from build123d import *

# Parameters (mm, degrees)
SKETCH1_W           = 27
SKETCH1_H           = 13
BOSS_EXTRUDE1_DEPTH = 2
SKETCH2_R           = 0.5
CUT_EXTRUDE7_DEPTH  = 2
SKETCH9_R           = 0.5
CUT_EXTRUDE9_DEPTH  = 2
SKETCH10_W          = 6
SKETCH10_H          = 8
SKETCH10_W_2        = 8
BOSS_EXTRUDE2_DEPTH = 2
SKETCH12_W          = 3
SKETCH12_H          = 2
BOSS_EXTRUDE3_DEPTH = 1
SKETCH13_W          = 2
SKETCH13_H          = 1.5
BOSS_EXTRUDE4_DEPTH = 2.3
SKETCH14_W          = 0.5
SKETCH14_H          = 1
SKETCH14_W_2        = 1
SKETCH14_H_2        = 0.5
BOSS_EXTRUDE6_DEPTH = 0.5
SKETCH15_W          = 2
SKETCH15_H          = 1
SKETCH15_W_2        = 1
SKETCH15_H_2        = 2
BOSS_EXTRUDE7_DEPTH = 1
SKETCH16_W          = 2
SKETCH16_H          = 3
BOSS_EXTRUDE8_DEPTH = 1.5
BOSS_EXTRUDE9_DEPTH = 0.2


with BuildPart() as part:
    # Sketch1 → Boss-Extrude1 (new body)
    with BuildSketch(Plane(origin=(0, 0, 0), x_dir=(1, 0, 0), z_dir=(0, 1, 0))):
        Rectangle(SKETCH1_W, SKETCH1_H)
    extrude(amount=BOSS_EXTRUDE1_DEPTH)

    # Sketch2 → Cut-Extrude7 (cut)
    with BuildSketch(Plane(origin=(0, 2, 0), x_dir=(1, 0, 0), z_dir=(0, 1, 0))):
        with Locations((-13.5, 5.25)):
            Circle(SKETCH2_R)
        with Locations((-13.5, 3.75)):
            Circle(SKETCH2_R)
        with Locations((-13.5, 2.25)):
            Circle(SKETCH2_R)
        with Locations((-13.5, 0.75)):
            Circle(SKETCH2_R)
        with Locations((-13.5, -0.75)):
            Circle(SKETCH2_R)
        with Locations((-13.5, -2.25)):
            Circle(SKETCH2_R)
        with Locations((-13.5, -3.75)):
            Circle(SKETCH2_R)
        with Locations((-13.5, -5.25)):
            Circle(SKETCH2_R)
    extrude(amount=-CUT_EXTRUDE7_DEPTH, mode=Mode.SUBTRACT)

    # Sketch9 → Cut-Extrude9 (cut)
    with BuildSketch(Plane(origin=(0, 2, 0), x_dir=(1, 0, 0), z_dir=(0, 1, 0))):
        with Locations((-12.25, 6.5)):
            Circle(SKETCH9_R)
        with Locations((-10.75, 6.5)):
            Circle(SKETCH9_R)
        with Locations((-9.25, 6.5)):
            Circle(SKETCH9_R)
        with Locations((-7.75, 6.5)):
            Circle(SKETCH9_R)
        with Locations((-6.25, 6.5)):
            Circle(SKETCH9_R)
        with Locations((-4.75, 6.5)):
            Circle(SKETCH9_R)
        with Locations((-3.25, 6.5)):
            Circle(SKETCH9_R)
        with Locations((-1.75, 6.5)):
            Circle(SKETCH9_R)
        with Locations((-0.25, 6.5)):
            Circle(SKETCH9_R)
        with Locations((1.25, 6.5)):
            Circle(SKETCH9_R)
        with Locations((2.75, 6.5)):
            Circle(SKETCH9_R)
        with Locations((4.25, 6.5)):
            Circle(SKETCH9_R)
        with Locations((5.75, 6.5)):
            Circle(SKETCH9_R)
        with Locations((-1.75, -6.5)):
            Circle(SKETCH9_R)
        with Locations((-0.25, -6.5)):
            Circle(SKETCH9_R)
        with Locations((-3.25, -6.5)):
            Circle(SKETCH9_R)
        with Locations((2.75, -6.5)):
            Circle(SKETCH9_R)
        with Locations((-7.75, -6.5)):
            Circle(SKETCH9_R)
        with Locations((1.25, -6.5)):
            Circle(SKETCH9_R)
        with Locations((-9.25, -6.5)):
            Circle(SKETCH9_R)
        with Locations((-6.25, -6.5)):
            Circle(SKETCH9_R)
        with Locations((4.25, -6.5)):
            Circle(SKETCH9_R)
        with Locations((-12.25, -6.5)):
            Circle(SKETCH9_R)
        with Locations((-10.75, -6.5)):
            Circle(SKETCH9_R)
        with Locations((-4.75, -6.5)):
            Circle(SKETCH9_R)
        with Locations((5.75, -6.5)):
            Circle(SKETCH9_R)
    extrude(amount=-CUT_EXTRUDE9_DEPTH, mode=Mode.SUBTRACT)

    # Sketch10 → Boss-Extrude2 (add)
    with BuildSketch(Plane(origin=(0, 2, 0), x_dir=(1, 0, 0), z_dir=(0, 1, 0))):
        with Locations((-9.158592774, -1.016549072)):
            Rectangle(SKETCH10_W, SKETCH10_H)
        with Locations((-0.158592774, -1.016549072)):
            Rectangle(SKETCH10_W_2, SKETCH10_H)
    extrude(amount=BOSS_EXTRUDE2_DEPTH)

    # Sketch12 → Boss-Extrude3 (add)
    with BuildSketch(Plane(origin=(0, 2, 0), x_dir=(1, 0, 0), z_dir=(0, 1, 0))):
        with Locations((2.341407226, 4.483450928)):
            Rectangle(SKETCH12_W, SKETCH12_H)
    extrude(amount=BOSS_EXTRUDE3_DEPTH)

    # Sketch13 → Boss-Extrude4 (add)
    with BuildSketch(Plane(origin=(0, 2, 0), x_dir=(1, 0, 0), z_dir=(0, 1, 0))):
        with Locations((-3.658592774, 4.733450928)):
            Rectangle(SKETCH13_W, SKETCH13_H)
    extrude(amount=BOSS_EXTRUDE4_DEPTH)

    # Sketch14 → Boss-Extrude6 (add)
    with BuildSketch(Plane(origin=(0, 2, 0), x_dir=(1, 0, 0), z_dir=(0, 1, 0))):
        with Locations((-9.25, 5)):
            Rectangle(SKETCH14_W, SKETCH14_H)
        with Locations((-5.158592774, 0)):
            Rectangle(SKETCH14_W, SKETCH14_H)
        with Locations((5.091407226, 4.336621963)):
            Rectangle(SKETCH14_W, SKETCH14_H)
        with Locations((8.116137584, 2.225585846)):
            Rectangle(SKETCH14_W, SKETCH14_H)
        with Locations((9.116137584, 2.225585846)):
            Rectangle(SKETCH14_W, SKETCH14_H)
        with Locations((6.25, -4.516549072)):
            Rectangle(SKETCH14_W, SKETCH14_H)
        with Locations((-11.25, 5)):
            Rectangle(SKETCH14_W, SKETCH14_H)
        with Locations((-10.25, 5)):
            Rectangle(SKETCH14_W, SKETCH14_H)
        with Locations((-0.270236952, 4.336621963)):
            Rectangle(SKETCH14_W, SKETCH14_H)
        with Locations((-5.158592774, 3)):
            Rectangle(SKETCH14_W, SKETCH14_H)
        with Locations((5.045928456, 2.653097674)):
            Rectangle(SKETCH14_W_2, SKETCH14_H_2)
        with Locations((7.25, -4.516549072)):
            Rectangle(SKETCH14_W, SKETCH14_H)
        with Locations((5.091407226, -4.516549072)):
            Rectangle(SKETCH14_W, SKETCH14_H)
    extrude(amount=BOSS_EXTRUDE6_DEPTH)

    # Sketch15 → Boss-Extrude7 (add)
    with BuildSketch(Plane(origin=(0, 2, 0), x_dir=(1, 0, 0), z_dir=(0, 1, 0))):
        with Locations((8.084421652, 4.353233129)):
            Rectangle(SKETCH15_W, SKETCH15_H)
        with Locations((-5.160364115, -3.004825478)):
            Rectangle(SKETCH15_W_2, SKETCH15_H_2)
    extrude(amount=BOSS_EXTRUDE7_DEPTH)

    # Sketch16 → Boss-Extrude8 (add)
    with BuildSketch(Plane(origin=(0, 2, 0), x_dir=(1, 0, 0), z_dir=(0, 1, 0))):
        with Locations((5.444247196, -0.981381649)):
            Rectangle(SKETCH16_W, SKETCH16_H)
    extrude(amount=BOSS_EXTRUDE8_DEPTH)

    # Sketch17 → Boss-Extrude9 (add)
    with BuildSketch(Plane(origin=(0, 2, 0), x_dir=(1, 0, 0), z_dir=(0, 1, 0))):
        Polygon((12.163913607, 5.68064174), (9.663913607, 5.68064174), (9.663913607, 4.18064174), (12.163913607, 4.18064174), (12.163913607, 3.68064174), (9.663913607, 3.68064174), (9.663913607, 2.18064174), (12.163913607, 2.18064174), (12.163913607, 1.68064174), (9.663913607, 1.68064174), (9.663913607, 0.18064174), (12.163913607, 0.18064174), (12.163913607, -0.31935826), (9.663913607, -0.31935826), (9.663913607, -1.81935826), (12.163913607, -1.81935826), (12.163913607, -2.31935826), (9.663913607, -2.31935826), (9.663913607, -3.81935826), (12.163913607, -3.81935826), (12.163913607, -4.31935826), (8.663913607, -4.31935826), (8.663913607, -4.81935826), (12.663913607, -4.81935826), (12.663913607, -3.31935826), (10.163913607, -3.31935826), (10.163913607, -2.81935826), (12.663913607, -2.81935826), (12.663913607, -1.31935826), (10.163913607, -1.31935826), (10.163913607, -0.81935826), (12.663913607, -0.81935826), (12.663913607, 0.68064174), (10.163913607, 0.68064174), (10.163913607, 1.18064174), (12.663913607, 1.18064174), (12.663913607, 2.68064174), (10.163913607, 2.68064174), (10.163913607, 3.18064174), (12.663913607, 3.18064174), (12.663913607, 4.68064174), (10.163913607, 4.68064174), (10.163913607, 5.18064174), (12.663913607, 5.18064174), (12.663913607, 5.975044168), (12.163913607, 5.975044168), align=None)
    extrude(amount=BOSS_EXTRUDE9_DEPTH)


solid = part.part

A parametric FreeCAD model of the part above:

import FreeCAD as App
import Part
import Sketcher

V = App.Vector


def add_polygon(sketch, points):
    """Adds a closed chain of lines whose ends are joined by coincident constraints."""
    first, n = sketch.GeometryCount, len(points)
    for a, b in zip(points, points[1:] + points[:1]):
        sketch.addGeometry(Part.LineSegment(App.Vector(*a, 0), App.Vector(*b, 0)), False)
    for i in range(n):
        sketch.addConstraint(Sketcher.Constraint("Coincident", first + i, 2, first + (i + 1) % n, 1))

doc = App.newDocument("Part")
body = doc.addObject("PartDesign::Body", "Body")

# Sketch on XZ plane
sketch1 = body.newObject("Sketcher::SketchObject", "Sketch")
sketch1.AttachmentSupport = (doc.getObject("XZ_Plane"), [""])
sketch1.MapMode = "FlatFace"
add_polygon(sketch1, [(-14, -6), (-14, 6), (14, 6), (14, -6)])  # lines 0-3
sketch1.addConstraint([
    Sketcher.Constraint("Vertical", 0),
    Sketcher.Constraint("Horizontal", 1),
    Sketcher.Constraint("Vertical", 2),
    Sketcher.Constraint("Horizontal", 3),
    Sketcher.Constraint("Symmetric", 0, 2, 2, 2, -1, 1),
    Sketcher.Constraint("DistanceX", 1, 1, 1, 2, 27.0),
    Sketcher.Constraint("DistanceY", 0, 1, 0, 2, 13.0),
])
pad1 = body.newObject("PartDesign::Pad", "Pad")
pad1.Profile = sketch1
pad1.Length = 2
pad1.Reversed = True

# Sketch on XZ plane
sketch2 = body.newObject("Sketcher::SketchObject", "Sketch001")
sketch2.AttachmentSupport = (doc.getObject("XZ_Plane"), [""])
sketch2.MapMode = "FlatFace"
sketch2.AttachmentOffset = App.Placement(V(0, 0, -2), App.Rotation())
sketch2.addGeometry([
    Part.Circle(V(-13.5, -5.2, 0), V(0, 0, 1), 0.5),  # 0
    Part.Circle(V(-13.5, -3.8, 0), V(0, 0, 1), 0.5),  # 1
    Part.Circle(V(-13.5, -2.2, 0), V(0, 0, 1), 0.5),  # 2
    Part.Circle(V(-13.5, -0.8, 0), V(0, 0, 1), 0.5),  # 3
    Part.Circle(V(-13.5, 0.8, 0), V(0, 0, 1), 0.5),  # 4
    Part.Circle(V(-13.5, 2.2, 0), V(0, 0, 1), 0.5),  # 5
    Part.Circle(V(-13.5, 3.8, 0), V(0, 0, 1), 0.5),  # 6
    Part.Circle(V(-13.5, 5.2, 0), V(0, 0, 1), 0.5),  # 7
], False)
sketch2.addConstraint([
    Sketcher.Constraint("Equal", 0, 1),
    Sketcher.Constraint("Equal", 1, 2),
    Sketcher.Constraint("Equal", 2, 3),
    Sketcher.Constraint("Equal", 3, 4),
    Sketcher.Constraint("Equal", 4, 5),
    Sketcher.Constraint("Equal", 5, 6),
    Sketcher.Constraint("Equal", 6, 7),
    Sketcher.Constraint("Symmetric", 3, 3, 4, 3, -1),
    Sketcher.Constraint("Symmetric", 2, 3, 5, 3, -1),
    Sketcher.Constraint("Symmetric", 1, 3, 6, 3, -1),
    Sketcher.Constraint("Symmetric", 0, 3, 7, 3, -1),
    Sketcher.Constraint("Vertical", 0, 3, 1, 3),
    Sketcher.Constraint("Vertical", 1, 3, 2, 3),
    Sketcher.Constraint("Vertical", 2, 3, 3, 3),
    Sketcher.Constraint("Diameter", 0, 1.0),
    Sketcher.Constraint("DistanceY", 0, 3, 2, 3, 3.0),
    Sketcher.Constraint("DistanceY", 1, 3, 3, 3, 3.0),
    Sketcher.Constraint("DistanceY", 2, 3, 4, 3, 3.0),
    Sketcher.Constraint("DistanceX", 0, 3, -1, 1, 13.5),
    Sketcher.Constraint("DistanceY", 0, 3, 1, 3, 1.5),
])
pocket1 = body.newObject("PartDesign::Pocket", "Pocket")
pocket1.Profile = sketch2
pocket1.Length = 2
pocket1.Reversed = True

# Sketch on XZ plane
sketch3 = body.newObject("Sketcher::SketchObject", "Sketch002")
sketch3.AttachmentSupport = (doc.getObject("XZ_Plane"), [""])
sketch3.MapMode = "FlatFace"
sketch3.AttachmentOffset = App.Placement(V(0, 0, -2), App.Rotation())
sketch3.addGeometry([
    Part.Circle(V(-12.2, -6.5, 0), V(0, 0, 1), 0.5),  # 0
    Part.Circle(V(-10.8, -6.5, 0), V(0, 0, 1), 0.5),  # 1
    Part.Circle(V(-9.2, -6.5, 0), V(0, 0, 1), 0.5),  # 2
    Part.Circle(V(-7.8, -6.5, 0), V(0, 0, 1), 0.5),  # 3
    Part.Circle(V(-6.2, -6.5, 0), V(0, 0, 1), 0.5),  # 4
    Part.Circle(V(-4.8, -6.5, 0), V(0, 0, 1), 0.5),  # 5
    Part.Circle(V(-3.2, -6.5, 0), V(0, 0, 1), 0.5),  # 6
    Part.Circle(V(-1.8, -6.5, 0), V(0, 0, 1), 0.5),  # 7
    Part.Circle(V(-0.2, -6.5, 0), V(0, 0, 1), 0.5),  # 8
    Part.Circle(V(1.2, -6.5, 0), V(0, 0, 1), 0.5),  # 9
    Part.Circle(V(2.8, -6.5, 0), V(0, 0, 1), 0.5),  # 10
    Part.Circle(V(4.2, -6.5, 0), V(0, 0, 1), 0.5),  # 11
    Part.Circle(V(5.8, -6.5, 0), V(0, 0, 1), 0.5),  # 12
    Part.Circle(V(-1.8, 6.5, 0), V(0, 0, 1), 0.5),  # 13
    Part.Circle(V(-0.2, 6.5, 0), V(0, 0, 1), 0.5),  # 14
    Part.Circle(V(-3.2, 6.5, 0), V(0, 0, 1), 0.5),  # 15
    Part.Circle(V(2.8, 6.5, 0), V(0, 0, 1), 0.5),  # 16
    Part.Circle(V(-7.8, 6.5, 0), V(0, 0, 1), 0.5),  # 17
    Part.Circle(V(1.2, 6.5, 0), V(0, 0, 1), 0.5),  # 18
    Part.Circle(V(-9.2, 6.5, 0), V(0, 0, 1), 0.5),  # 19
    Part.Circle(V(-6.2, 6.5, 0), V(0, 0, 1), 0.5),  # 20
    Part.Circle(V(4.2, 6.5, 0), V(0, 0, 1), 0.5),  # 21
    Part.Circle(V(-12.2, 6.5, 0), V(0, 0, 1), 0.5),  # 22
    Part.Circle(V(-10.8, 6.5, 0), V(0, 0, 1), 0.5),  # 23
    Part.Circle(V(-4.8, 6.5, 0), V(0, 0, 1), 0.5),  # 24
    Part.Circle(V(5.8, 6.5, 0), V(0, 0, 1), 0.5),  # 25
], False)
sketch3.addConstraint([
    Sketcher.Constraint("Equal", 0, 1),
    Sketcher.Constraint("Equal", 1, 2),
    Sketcher.Constraint("Equal", 2, 3),
    Sketcher.Constraint("Equal", 3, 4),
    Sketcher.Constraint("Equal", 4, 5),
    Sketcher.Constraint("Equal", 5, 6),
    Sketcher.Constraint("Equal", 6, 7),
    Sketcher.Constraint("Equal", 7, 8),
    Sketcher.Constraint("Equal", 8, 9),
    Sketcher.Constraint("Equal", 9, 10),
    Sketcher.Constraint("Equal", 10, 11),
    Sketcher.Constraint("Equal", 11, 12),
    Sketcher.Constraint("Equal", 12, 13),
    Sketcher.Constraint("Equal", 13, 14),
    Sketcher.Constraint("Equal", 14, 15),
    Sketcher.Constraint("Equal", 15, 16),
    Sketcher.Constraint("Equal", 16, 17),
    Sketcher.Constraint("Equal", 17, 18),
    Sketcher.Constraint("Equal", 18, 19),
    Sketcher.Constraint("Equal", 19, 20),
    Sketcher.Constraint("Equal", 20, 21),
    Sketcher.Constraint("Equal", 21, 22),
    Sketcher.Constraint("Equal", 22, 23),
    Sketcher.Constraint("Equal", 23, 24),
    Sketcher.Constraint("Equal", 24, 25),
    Sketcher.Constraint("Symmetric", 7, 3, 13, 3, -1),
    Sketcher.Constraint("Symmetric", 8, 3, 14, 3, -1),
    Sketcher.Constraint("Symmetric", 6, 3, 15, 3, -1),
    Sketcher.Constraint("Symmetric", 10, 3, 16, 3, -1),
    Sketcher.Constraint("Symmetric", 3, 3, 17, 3, -1),
    Sketcher.Constraint("Symmetric", 9, 3, 18, 3, -1),
    Sketcher.Constraint("Symmetric", 2, 3, 19, 3, -1),
    Sketcher.Constraint("Symmetric", 4, 3, 20, 3, -1),
    Sketcher.Constraint("Symmetric", 11, 3, 21, 3, -1),
    Sketcher.Constraint("Symmetric", 0, 3, 22, 3, -1),
    Sketcher.Constraint("Symmetric", 1, 3, 23, 3, -1),
    Sketcher.Constraint("Symmetric", 5, 3, 24, 3, -1),
    Sketcher.Constraint("Symmetric", 12, 3, 25, 3, -1),
    Sketcher.Constraint("Horizontal", 0, 3, 1, 3),
    Sketcher.Constraint("Horizontal", 1, 3, 2, 3),
    Sketcher.Constraint("Horizontal", 2, 3, 3, 3),
    Sketcher.Constraint("Horizontal", 3, 3, 4, 3),
    Sketcher.Constraint("Horizontal", 4, 3, 5, 3),
    Sketcher.Constraint("Horizontal", 5, 3, 6, 3),
    Sketcher.Constraint("Horizontal", 6, 3, 7, 3),
    Sketcher.Constraint("Horizontal", 7, 3, 8, 3),
    Sketcher.Constraint("Horizontal", 8, 3, 9, 3),
    Sketcher.Constraint("Horizontal", 9, 3, 10, 3),
    Sketcher.Constraint("Horizontal", 10, 3, 11, 3),
    Sketcher.Constraint("Horizontal", 11, 3, 12, 3),
    Sketcher.Constraint("Diameter", 0, 1.0),
    Sketcher.Constraint("DistanceX", 0, 3, 2, 3, 3.0),
    Sketcher.Constraint("DistanceX", 1, 3, 3, 3, 3.0),
    Sketcher.Constraint("DistanceX", 2, 3, 4, 3, 3.0),
    Sketcher.Constraint("DistanceX", 3, 3, 5, 3, 3.0),
    Sketcher.Constraint("DistanceX", 4, 3, 6, 3, 3.0),
    Sketcher.Constraint("DistanceX", 5, 3, 7, 3, 3.0),
    Sketcher.Constraint("DistanceX", 6, 3, 8, 3, 3.0),
    Sketcher.Constraint("DistanceX", 7, 3, 9, 3, 3.0),
    Sketcher.Constraint("DistanceX", 8, 3, 10, 3, 3.0),
    Sketcher.Constraint("DistanceX", 9, 3, 11, 3, 3.0),
    Sketcher.Constraint("DistanceX", 10, 3, 12, 3, 3.0),
    Sketcher.Constraint("DistanceY", 7, 3, 13, 3, 13.0),
    Sketcher.Constraint("DistanceX", 0, 3, 1, 3, 1.5),
    Sketcher.Constraint("DistanceX", 0, 3, -1, 1, 12.25),
])
pocket2 = body.newObject("PartDesign::Pocket", "Pocket001")
pocket2.Profile = sketch3
pocket2.Length = 2
pocket2.Reversed = True

# Sketch on XZ plane
sketch4 = body.newObject("Sketcher::SketchObject", "Sketch003")
sketch4.AttachmentSupport = (doc.getObject("XZ_Plane"), [""])
sketch4.MapMode = "FlatFace"
sketch4.AttachmentOffset = App.Placement(V(0, 0, -2), App.Rotation())
add_polygon(sketch4, [(-12, -3), (-12, 5), (-6, 5), (-6, -3)])  # lines 0-3
add_polygon(sketch4, [(-4, -3), (-4, 5), (4, 5), (4, -3)])  # lines 4-7
sketch4.addConstraint([
    Sketcher.Constraint("Vertical", 0),
    Sketcher.Constraint("Horizontal", 1),
    Sketcher.Constraint("Vertical", 2),
    Sketcher.Constraint("Horizontal", 3),
    Sketcher.Constraint("Vertical", 4),
    Sketcher.Constraint("Horizontal", 5),
    Sketcher.Constraint("Vertical", 6),
    Sketcher.Constraint("Horizontal", 7),
    Sketcher.Constraint("Horizontal", 1, 2, 4, 2),
    Sketcher.Constraint("Horizontal", 3, 2, 6, 2),
    Sketcher.Constraint("Equal", 7, 0),
    Sketcher.Constraint("DistanceX", 1, 1, 1, 2, 6.0),
    Sketcher.Constraint("DistanceX", 5, 1, 5, 2, 8.0),
    Sketcher.Constraint("DistanceX", 1, 2, 4, 2, 2.0),
    Sketcher.Constraint("DistanceY", -1, 1, 0, 2, 5.016549),
    Sketcher.Constraint("DistanceX", 0, 2, -1, 1, 12.158593),
])
pad2 = body.newObject("PartDesign::Pad", "Pad001")
pad2.Profile = sketch4
pad2.Length = 2
pad2.Reversed = True

# Sketch on XZ plane
sketch5 = body.newObject("Sketcher::SketchObject", "Sketch004")
sketch5.AttachmentSupport = (doc.getObject("XZ_Plane"), [""])
sketch5.MapMode = "FlatFace"
sketch5.AttachmentOffset = App.Placement(V(0, 0, -2), App.Rotation())
add_polygon(sketch5, [(0.8, -5.5), (0.8, -3.5), (3.8, -3.5), (3.8, -5.5)])  # lines 0-3
sketch5.addConstraint([
    Sketcher.Constraint("Vertical", 0),
    Sketcher.Constraint("Horizontal", 1),
    Sketcher.Constraint("Vertical", 2),
    Sketcher.Constraint("Horizontal", 3),
    Sketcher.Constraint("DistanceX", 1, 1, 1, 2, 3.0),
    Sketcher.Constraint("DistanceY", 0, 1, 0, 2, 2.0),
    Sketcher.Constraint("DistanceY", 0, 2, -1, 1, 3.483451),
    Sketcher.Constraint("DistanceX", -1, 1, 0, 2, 0.841407),
])
pad3 = body.newObject("PartDesign::Pad", "Pad002")
pad3.Profile = sketch5
pad3.Length = 1
pad3.Reversed = True

# Sketch on XZ plane
sketch6 = body.newObject("Sketcher::SketchObject", "Sketch005")
sketch6.AttachmentSupport = (doc.getObject("XZ_Plane"), [""])
sketch6.MapMode = "FlatFace"
sketch6.AttachmentOffset = App.Placement(V(0, 0, -2), App.Rotation())
add_polygon(sketch6, [(-4.7, -5.5), (-4.7, -4), (-2.7, -4), (-2.7, -5.5)])  # lines 0-3
sketch6.addConstraint([
    Sketcher.Constraint("Vertical", 0),
    Sketcher.Constraint("Horizontal", 1),
    Sketcher.Constraint("Vertical", 2),
    Sketcher.Constraint("Horizontal", 3),
    Sketcher.Constraint("DistanceX", 1, 1, 1, 2, 2.0),
    Sketcher.Constraint("DistanceY", 0, 1, 0, 2, 1.5),
    Sketcher.Constraint("DistanceY", 0, 2, -1, 1, 3.983451),
    Sketcher.Constraint("DistanceX", 0, 2, -1, 1, 4.658593),
])
pad4 = body.newObject("PartDesign::Pad", "Pad003")
pad4.Profile = sketch6
pad4.Length = 2.3
pad4.Reversed = True

# Sketch on XZ plane
sketch7 = body.newObject("Sketcher::SketchObject", "Sketch006")
sketch7.AttachmentSupport = (doc.getObject("XZ_Plane"), [""])
sketch7.MapMode = "FlatFace"
sketch7.AttachmentOffset = App.Placement(V(0, 0, -2), App.Rotation())
add_polygon(sketch7, [(-9.5, -5.5), (-9.5, -4.5), (-9, -4.5), (-9, -5.5)])  # lines 0-3
add_polygon(sketch7, [(-5.4, -0.5), (-5.4, 0.5), (-4.9, 0.5), (-4.9, -0.5)])  # lines 4-7
add_polygon(sketch7, [(4.8, -4.8), (4.8, -3.8), (5.3, -3.8), (5.3, -4.8)])  # lines 8-11
add_polygon(sketch7, [(7.9, -2.7), (7.9, -1.7), (8.4, -1.7), (8.4, -2.7)])  # lines 12-15
add_polygon(sketch7, [(8.9, -2.7), (8.9, -1.7), (9.4, -1.7), (9.4, -2.7)])  # lines 16-19
add_polygon(sketch7, [(6, 4), (6, 5), (6.5, 5), (6.5, 4)])  # lines 20-23
add_polygon(sketch7, [(-11.5, -5.5), (-11.5, -4.5), (-11, -4.5), (-11, -5.5)])  # lines 24-27
add_polygon(sketch7, [(-10.5, -5.5), (-10.5, -4.5), (-10, -4.5), (-10, -5.5)])  # lines 28-31
add_polygon(sketch7, [(-0.5, -4.8), (-0.5, -3.8), (0, -3.8), (0, -4.8)])  # lines 32-35
add_polygon(sketch7, [(-5.4, -3.5), (-5.4, -2.5), (-4.9, -2.5), (-4.9, -3.5)])  # lines 36-39
add_polygon(sketch7, [(4.5, -2.9), (4.5, -2.4), (5.5, -2.4), (5.5, -2.9)])  # lines 40-43
add_polygon(sketch7, [(7, 4), (7, 5), (7.5, 5), (7.5, 4)])  # lines 44-47
add_polygon(sketch7, [(4.8, 4), (4.8, 5), (5.3, 5), (5.3, 4)])  # lines 48-51
sketch7.addConstraint([
    Sketcher.Constraint("Vertical", 0),
    Sketcher.Constraint("Horizontal", 1),
    Sketcher.Constraint("Vertical", 2),
    Sketcher.Constraint("Horizontal", 3),
    Sketcher.Constraint("Vertical", 4),
    Sketcher.Constraint("Horizontal", 5),
    Sketcher.Constraint("Vertical", 6),
    Sketcher.Constraint("Horizontal", 7),
    Sketcher.Constraint("Vertical", 8),
    Sketcher.Constraint("Horizontal", 9),
    Sketcher.Constraint("Vertical", 10),
    Sketcher.Constraint("Horizontal", 11),
    Sketcher.Constraint("Vertical", 12),
    Sketcher.Constraint("Horizontal", 13),
    Sketcher.Constraint("Vertical", 14),
    Sketcher.Constraint("Horizontal", 15),
    Sketcher.Constraint("Vertical", 16),
    Sketcher.Constraint("Horizontal", 17),
    Sketcher.Constraint("Vertical", 18),
    Sketcher.Constraint("Horizontal", 19),
    Sketcher.Constraint("Vertical", 20),
    Sketcher.Constraint("Horizontal", 21),
    Sketcher.Constraint("Vertical", 22),
    Sketcher.Constraint("Horizontal", 23),
    Sketcher.Constraint("Vertical", 24),
    Sketcher.Constraint("Horizontal", 25),
    Sketcher.Constraint("Vertical", 26),
    Sketcher.Constraint("Horizontal", 27),
    Sketcher.Constraint("Vertical", 28),
    Sketcher.Constraint("Horizontal", 29),
    Sketcher.Constraint("Vertical", 30),
    Sketcher.Constraint("Horizontal", 31),
    Sketcher.Constraint("Vertical", 32),
    Sketcher.Constraint("Horizontal", 33),
    Sketcher.Constraint("Vertical", 34),
    Sketcher.Constraint("Horizontal", 35),
    Sketcher.Constraint("Vertical", 36),
    Sketcher.Constraint("Horizontal", 37),
    Sketcher.Constraint("Vertical", 38),
    Sketcher.Constraint("Horizontal", 39),
    Sketcher.Constraint("Vertical", 40),
    Sketcher.Constraint("Horizontal", 41),
    Sketcher.Constraint("Vertical", 42),
    Sketcher.Constraint("Horizontal", 43),
    Sketcher.Constraint("Vertical", 44),
    Sketcher.Constraint("Horizontal", 45),
    Sketcher.Constraint("Vertical", 46),
    Sketcher.Constraint("Horizontal", 47),
    Sketcher.Constraint("Vertical", 48),
    Sketcher.Constraint("Horizontal", 49),
    Sketcher.Constraint("Vertical", 50),
    Sketcher.Constraint("Horizontal", 51),
    Sketcher.Constraint("Horizontal", 13, 2, 16, 2),
    Sketcher.Constraint("Horizontal", 15, 2, 18, 2),
    Sketcher.Constraint("Horizontal", 1, 2, 24, 2),
    Sketcher.Constraint("Horizontal", 3, 2, 26, 2),
    Sketcher.Constraint("Horizontal", 25, 2, 28, 2),
    Sketcher.Constraint("Horizontal", 27, 2, 30, 2),
    Sketcher.Constraint("Horizontal", 9, 2, 32, 2),
    Sketcher.Constraint("Horizontal", 11, 2, 34, 2),
    Sketcher.Constraint("Horizontal", 21, 2, 44, 2),
    Sketcher.Constraint("Horizontal", 23, 2, 46, 2),
    Sketcher.Constraint("Horizontal", 45, 2, 48, 2),
    Sketcher.Constraint("Horizontal", 47, 2, 50, 2),
    Sketcher.Constraint("Vertical", 7, 2, 36, 2),
    Sketcher.Constraint("Vertical", 6, 2, 37, 2),
    Sketcher.Constraint("Vertical", 11, 2, 48, 2),
    Sketcher.Constraint("Vertical", 10, 2, 49, 2),
    Sketcher.Constraint("Equal", 3, 5),
    Sketcher.Constraint("Equal", 7, 9),
    Sketcher.Constraint("Equal", 11, 13),
    Sketcher.Constraint("Equal", 15, 17),
    Sketcher.Constraint("Equal", 19, 21),
    Sketcher.Constraint("Equal", 23, 25),
    Sketcher.Constraint("Equal", 27, 29),
    Sketcher.Constraint("Equal", 31, 33),
    Sketcher.Constraint("Equal", 39, 45),
    Sketcher.Constraint("Equal", 43, 0),
    Sketcher.Constraint("Equal", 2, 4),
    Sketcher.Constraint("Equal", 6, 8),
    Sketcher.Constraint("Equal", 10, 12),
    Sketcher.Constraint("Equal", 18, 20),
    Sketcher.Constraint("Equal", 34, 36),
    Sketcher.Constraint("Equal", 51, 40),
    Sketcher.Constraint("DistanceX", 41, 1, 41, 2, 1.0),
    Sketcher.Constraint("DistanceX", 1, 1, 1, 2, 0.5),
    Sketcher.Constraint("DistanceX", 1, 2, -1, 1, 9.0),
    Sketcher.Constraint("DistanceX", -1, 1, 20, 2, 6.0),
    Sketcher.Constraint("DistanceX", 25, 2, -1, 1, 11.0),
    Sketcher.Constraint("DistanceX", 29, 2, -1, 1, 10.0),
    Sketcher.Constraint("DistanceX", -1, 1, 44, 2, 7.0),
    Sketcher.Constraint("DistanceY", 1, 2, 4, 2, 5.0),
    Sketcher.Constraint("DistanceX", 12, 2, 16, 2, 1.0),
    Sketcher.Constraint("DistanceY", 36, 2, 7, 2, 2.0),
    Sketcher.Constraint("DistanceY", 0, 2, -1, 1, 4.5),
    Sketcher.Constraint("DistanceX", 6, 2, 8, 2, 9.75),
    Sketcher.Constraint("DistanceY", 8, 2, -1, 1, 3.836622),
    Sketcher.Constraint("DistanceY", -1, 1, 20, 2, 5.016549),
    Sketcher.Constraint("DistanceX", -1, 1, 40, 2, 4.545928),
    Sketcher.Constraint("DistanceX", 9, 2, 12, 2, 2.52473),
    Sketcher.Constraint("DistanceX", 40, 2, 8, 2, 0.295479),
    Sketcher.Constraint("DistanceY", 15, 2, 40, 2, 0.322488),
    Sketcher.Constraint("DistanceY", 12, 2, -1, 1, 1.725586),
    Sketcher.Constraint("DistanceX", 32, 2, -1, 1, 0.520237),
])
pad5 = body.newObject("PartDesign::Pad", "Pad004")
pad5.Profile = sketch7
pad5.Length = 0.5
pad5.Reversed = True

# Sketch on XZ plane
sketch8 = body.newObject("Sketcher::SketchObject", "Sketch007")
sketch8.AttachmentSupport = (doc.getObject("XZ_Plane"), [""])
sketch8.MapMode = "FlatFace"
sketch8.AttachmentOffset = App.Placement(V(0, 0, -2), App.Rotation())
add_polygon(sketch8, [(7.1, -4.9), (7.1, -3.9), (9.1, -3.9), (9.1, -4.9)])  # lines 0-3
add_polygon(sketch8, [(-5.7, 2), (-5.7, 4), (-4.7, 4), (-4.7, 2)])  # lines 4-7
sketch8.addConstraint([
    Sketcher.Constraint("Vertical", 0),
    Sketcher.Constraint("Horizontal", 1),
    Sketcher.Constraint("Vertical", 2),
    Sketcher.Constraint("Horizontal", 3),
    Sketcher.Constraint("Vertical", 4),
    Sketcher.Constraint("Horizontal", 5),
    Sketcher.Constraint("Vertical", 6),
    Sketcher.Constraint("Horizontal", 7),
    Sketcher.Constraint("Equal", 7, 0),
    Sketcher.Constraint("Equal", 3, 4),
    Sketcher.Constraint("DistanceX", 1, 1, 1, 2, 2.0),
    Sketcher.Constraint("DistanceX", 5, 1, 5, 2, 1.0),
    Sketcher.Constraint("DistanceX", -1, 1, 0, 2, 7.084422),
    Sketcher.Constraint("DistanceY", 0, 2, 4, 2, 7.858059),
    Sketcher.Constraint("DistanceY", 0, 2, -1, 1, 3.853233),
    Sketcher.Constraint("DistanceX", 4, 2, -1, 1, 5.660364),
])
pad6 = body.newObject("PartDesign::Pad", "Pad005")
pad6.Profile = sketch8
pad6.Length = 1
pad6.Reversed = True

# Sketch on XZ plane
sketch9 = body.newObject("Sketcher::SketchObject", "Sketch008")
sketch9.AttachmentSupport = (doc.getObject("XZ_Plane"), [""])
sketch9.MapMode = "FlatFace"
sketch9.AttachmentOffset = App.Placement(V(0, 0, -2), App.Rotation())
add_polygon(sketch9, [(4.4, -0.5), (4.4, 2.5), (6.4, 2.5), (6.4, -0.5)])  # lines 0-3
sketch9.addConstraint([
    Sketcher.Constraint("Vertical", 0),
    Sketcher.Constraint("Horizontal", 1),
    Sketcher.Constraint("Vertical", 2),
    Sketcher.Constraint("Horizontal", 3),
    Sketcher.Constraint("DistanceX", 1, 1, 1, 2, 2.0),
    Sketcher.Constraint("DistanceY", 0, 1, 0, 2, 3.0),
    Sketcher.Constraint("DistanceY", -1, 1, 0, 2, 2.481382),
    Sketcher.Constraint("DistanceX", -1, 1, 0, 2, 4.444247),
])
pad7 = body.newObject("PartDesign::Pad", "Pad006")
pad7.Profile = sketch9
pad7.Length = 1.5
pad7.Reversed = True

# Sketch on XZ plane
sketch10 = body.newObject("Sketcher::SketchObject", "Sketch009")
sketch10.AttachmentSupport = (doc.getObject("XZ_Plane"), [""])
sketch10.MapMode = "FlatFace"
sketch10.AttachmentOffset = App.Placement(V(0, 0, -2), App.Rotation())
add_polygon(sketch10, [(12.16, -5.68), (9.66, -5.68), (9.66, -4.18), (12.16, -4.18), (12.16, -3.68), (9.66, -3.68), (9.66, -2.18), (12.16, -2.18), (12.16, -1.68), (9.66, -1.68), (9.66, -0.18), (12.16, -0.18), (12.16, 0.32), (9.66, 0.32), (9.66, 1.82), (12.16, 1.82), (12.16, 2.32), (9.66, 2.32), (9.66, 3.82), (12.16, 3.82), (12.16, 4.32), (8.66, 4.32), (8.66, 4.82), (12.66, 4.82), (12.66, 3.32), (10.16, 3.32), (10.16, 2.82), (12.66, 2.82), (12.66, 1.32), (10.16, 1.32), (10.16, 0.82), (12.66, 0.82), (12.66, -0.68), (10.16, -0.68), (10.16, -1.18), (12.66, -1.18), (12.66, -2.68), (10.16, -2.68), (10.16, -3.18), (12.66, -3.18), (12.66, -4.68), (10.16, -4.68), (10.16, -5.18), (12.66, -5.18), (12.66, -5.98), (12.16, -5.98)])  # lines 0-45
sketch10.addConstraint([
    Sketcher.Constraint("Horizontal", 0),
    Sketcher.Constraint("Vertical", 1),
    Sketcher.Constraint("Horizontal", 2),
    Sketcher.Constraint("Vertical", 3),
    Sketcher.Constraint("Horizontal", 4),
    Sketcher.Constraint("Vertical", 5),
    Sketcher.Constraint("Horizontal", 6),
    Sketcher.Constraint("Vertical", 7),
    Sketcher.Constraint("Horizontal", 8),
    Sketcher.Constraint("Vertical", 9),
    Sketcher.Constraint("Horizontal", 10),
    Sketcher.Constraint("Vertical", 11),
    Sketcher.Constraint("Horizontal", 12),
    Sketcher.Constraint("Vertical", 13),
    Sketcher.Constraint("Horizontal", 14),
    Sketcher.Constraint("Vertical", 15),
    Sketcher.Constraint("Horizontal", 16),
    Sketcher.Constraint("Vertical", 17),
    Sketcher.Constraint("Horizontal", 18),
    Sketcher.Constraint("Vertical", 19),
    Sketcher.Constraint("Horizontal", 20),
    Sketcher.Constraint("Vertical", 21),
    Sketcher.Constraint("Horizontal", 22),
    Sketcher.Constraint("Vertical", 23),
    Sketcher.Constraint("Horizontal", 24),
    Sketcher.Constraint("Vertical", 25),
    Sketcher.Constraint("Horizontal", 26),
    Sketcher.Constraint("Vertical", 27),
    Sketcher.Constraint("Horizontal", 28),
    Sketcher.Constraint("Vertical", 29),
    Sketcher.Constraint("Horizontal", 30),
    Sketcher.Constraint("Vertical", 31),
    Sketcher.Constraint("Horizontal", 32),
    Sketcher.Constraint("Vertical", 33),
    Sketcher.Constraint("Horizontal", 34),
    Sketcher.Constraint("Vertical", 35),
    Sketcher.Constraint("Horizontal", 36),
    Sketcher.Constraint("Vertical", 37),
    Sketcher.Constraint("Horizontal", 38),
    Sketcher.Constraint("Vertical", 39),
    Sketcher.Constraint("Horizontal", 40),
    Sketcher.Constraint("Vertical", 41),
    Sketcher.Constraint("Horizontal", 42),
    Sketcher.Constraint("Vertical", 43),
    Sketcher.Constraint("Horizontal", 44),
    Sketcher.Constraint("Vertical", 45),
    Sketcher.Constraint("Vertical", 1, 2, 4, 2),
    Sketcher.Constraint("Vertical", 3, 2, 6, 2),
    Sketcher.Constraint("Vertical", 5, 2, 8, 2),
    Sketcher.Constraint("Vertical", 7, 2, 10, 2),
    Sketcher.Constraint("Vertical", 9, 2, 12, 2),
    Sketcher.Constraint("Vertical", 11, 2, 14, 2),
    Sketcher.Constraint("Vertical", 13, 2, 16, 2),
    Sketcher.Constraint("Vertical", 15, 2, 18, 2),
    Sketcher.Constraint("Vertical", 23, 2, 26, 2),
    Sketcher.Constraint("Vertical", 25, 2, 28, 2),
    Sketcher.Constraint("Vertical", 27, 2, 30, 2),
    Sketcher.Constraint("Vertical", 29, 2, 32, 2),
    Sketcher.Constraint("Vertical", 31, 2, 34, 2),
    Sketcher.Constraint("Vertical", 33, 2, 36, 2),
    Sketcher.Constraint("Vertical", 35, 2, 38, 2),
    Sketcher.Constraint("Vertical", 37, 2, 40, 2),
    Sketcher.Constraint("Vertical", 39, 2, 42, 2),
    Sketcher.Constraint("Vertical", 19, 2, 44, 2),
    Sketcher.Constraint("Equal", 18, 24),
    Sketcher.Constraint("Equal", 44, 3),
    Sketcher.Constraint("Equal", 1, 5),
    Sketcher.Constraint("Equal", 3, 7),
    Sketcher.Constraint("Equal", 5, 9),
    Sketcher.Constraint("Equal", 7, 11),
    Sketcher.Constraint("Equal", 9, 13),
    Sketcher.Constraint("Equal", 11, 15),
    Sketcher.Constraint("Equal", 13, 17),
    Sketcher.Constraint("Equal", 15, 19),
    Sketcher.Constraint("Equal", 19, 21),
    Sketcher.Constraint("Equal", 17, 23),
    Sketcher.Constraint("Equal", 21, 25),
    Sketcher.Constraint("Equal", 23, 27),
    Sketcher.Constraint("Equal", 25, 29),
    Sketcher.Constraint("Equal", 27, 31),
    Sketcher.Constraint("Equal", 29, 33),
    Sketcher.Constraint("Equal", 31, 35),
    Sketcher.Constraint("Equal", 33, 37),
    Sketcher.Constraint("Equal", 35, 39),
    Sketcher.Constraint("Equal", 37, 41),
    Sketcher.Constraint("DistanceX", 22, 1, 22, 2, 4.0),
    Sketcher.Constraint("DistanceX", 0, 2, 0, 1, 2.5),
    Sketcher.Constraint("DistanceX", 20, 2, 20, 1, 3.5),
    Sketcher.Constraint("DistanceY", 1, 1, 1, 2, 1.5),
    Sketcher.Constraint("DistanceY", 43, 2, 43, 1, 0.794402),
    Sketcher.Constraint("DistanceY", 0, 2, -1, 1, 5.680642),
    Sketcher.Constraint("DistanceX", -1, 1, 0, 2, 9.663914),
])
pad8 = body.newObject("PartDesign::Pad", "Pad007")
pad8.Profile = sketch10
pad8.Length = 0.2
pad8.Reversed = True

doc.recompute()
